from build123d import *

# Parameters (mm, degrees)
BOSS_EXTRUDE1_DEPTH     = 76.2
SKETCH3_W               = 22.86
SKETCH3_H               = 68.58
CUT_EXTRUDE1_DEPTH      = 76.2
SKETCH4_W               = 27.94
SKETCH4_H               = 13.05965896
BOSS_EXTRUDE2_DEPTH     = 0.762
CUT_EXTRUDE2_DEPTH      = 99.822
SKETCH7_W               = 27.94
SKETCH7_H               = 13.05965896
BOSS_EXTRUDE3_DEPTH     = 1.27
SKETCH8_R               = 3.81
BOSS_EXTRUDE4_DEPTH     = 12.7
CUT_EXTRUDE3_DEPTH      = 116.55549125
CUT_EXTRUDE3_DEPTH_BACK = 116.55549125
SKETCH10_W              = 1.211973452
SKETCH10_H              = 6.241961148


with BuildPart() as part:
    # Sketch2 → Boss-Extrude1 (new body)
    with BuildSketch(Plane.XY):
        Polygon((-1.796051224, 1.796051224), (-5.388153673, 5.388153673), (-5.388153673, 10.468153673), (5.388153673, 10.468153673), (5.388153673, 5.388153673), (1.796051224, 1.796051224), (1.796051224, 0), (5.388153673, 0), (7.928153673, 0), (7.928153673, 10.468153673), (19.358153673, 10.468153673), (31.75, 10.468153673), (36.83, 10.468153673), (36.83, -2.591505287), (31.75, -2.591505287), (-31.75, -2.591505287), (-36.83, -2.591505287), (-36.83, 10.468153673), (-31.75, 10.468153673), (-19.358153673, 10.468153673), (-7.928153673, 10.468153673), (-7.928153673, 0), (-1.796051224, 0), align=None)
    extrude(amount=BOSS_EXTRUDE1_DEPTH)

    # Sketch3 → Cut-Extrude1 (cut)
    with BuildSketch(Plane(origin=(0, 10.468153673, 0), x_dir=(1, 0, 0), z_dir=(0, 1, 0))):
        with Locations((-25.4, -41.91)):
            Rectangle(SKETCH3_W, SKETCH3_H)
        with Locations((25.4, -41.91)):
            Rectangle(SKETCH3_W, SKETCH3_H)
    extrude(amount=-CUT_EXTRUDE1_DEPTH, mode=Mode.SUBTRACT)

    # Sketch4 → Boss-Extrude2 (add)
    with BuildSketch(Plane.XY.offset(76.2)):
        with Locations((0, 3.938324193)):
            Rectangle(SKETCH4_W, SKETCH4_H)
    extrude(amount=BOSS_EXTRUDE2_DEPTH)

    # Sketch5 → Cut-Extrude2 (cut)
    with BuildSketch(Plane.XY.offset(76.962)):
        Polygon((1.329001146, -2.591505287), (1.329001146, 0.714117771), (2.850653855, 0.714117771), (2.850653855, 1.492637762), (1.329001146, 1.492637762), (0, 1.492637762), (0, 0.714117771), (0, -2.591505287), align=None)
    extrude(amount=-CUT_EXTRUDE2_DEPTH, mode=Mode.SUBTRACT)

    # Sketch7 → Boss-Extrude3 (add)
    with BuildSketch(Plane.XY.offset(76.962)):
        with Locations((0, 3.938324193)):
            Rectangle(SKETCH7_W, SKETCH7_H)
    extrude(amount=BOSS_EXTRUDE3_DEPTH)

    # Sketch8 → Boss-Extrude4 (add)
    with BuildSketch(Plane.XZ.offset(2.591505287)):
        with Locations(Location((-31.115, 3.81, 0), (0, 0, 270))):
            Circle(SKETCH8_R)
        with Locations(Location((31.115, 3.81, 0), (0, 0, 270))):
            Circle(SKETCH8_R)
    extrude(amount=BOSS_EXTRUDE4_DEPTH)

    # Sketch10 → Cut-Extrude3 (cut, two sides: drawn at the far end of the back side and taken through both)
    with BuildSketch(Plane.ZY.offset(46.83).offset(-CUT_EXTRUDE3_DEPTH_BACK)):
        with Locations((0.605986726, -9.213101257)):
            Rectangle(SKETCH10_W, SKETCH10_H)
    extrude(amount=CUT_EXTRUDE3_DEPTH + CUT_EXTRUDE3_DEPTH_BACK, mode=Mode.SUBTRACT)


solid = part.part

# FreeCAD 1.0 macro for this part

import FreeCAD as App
import Part
import Sketcher
from FreeCAD import Vector
Q = App.Units.Quantity

doc = App.newDocument("Part")
body = doc.addObject("PartDesign::Body", "Body")

sketch1 = body.newObject("Sketcher::SketchObject", "Sketch")
sketch1.AttachmentSupport = (doc.getObject("XY_Plane"), [""])
sketch1.MapMode = "FlatFace"
sketch1.addGeometry([
    Part.LineSegment(Vector(-5.4, 5.4, 0), Vector(-1.8, 1.8, 0)),
    Part.LineSegment(Vector(-1.8, 1.8, 0), Vector(-1.8, 0, 0)),
    Part.LineSegment(Vector(-1.8, 0, 0), Vector(-7.9, 0, 0)),
    Part.LineSegment(Vector(-7.9, 0, 0), Vector(-7.9, 10.5, 0)),
    Part.LineSegment(Vector(-7.9, 10.5, 0), Vector(-36.8, 10.5, 0)),
    Part.LineSegment(Vector(-36.8, 10.5, 0), Vector(-36.8, -2.6, 0)),
    Part.LineSegment(Vector(-36.8, -2.6, 0), Vector(36.8, -2.6, 0)),
    Part.LineSegment(Vector(36.8, -2.6, 0), Vector(36.8, 10.5, 0)),
    Part.LineSegment(Vector(36.8, 10.5, 0), Vector(7.9, 10.5, 0)),
    Part.LineSegment(Vector(7.9, 10.5, 0), Vector(7.9, 0, 0)),
    Part.LineSegment(Vector(7.9, 0, 0), Vector(1.8, 0, 0)),
    Part.LineSegment(Vector(1.8, 0, 0), Vector(1.8, 1.8, 0)),
    Part.LineSegment(Vector(1.8, 1.8, 0), Vector(5.4, 5.4, 0)),
    Part.LineSegment(Vector(5.4, 5.4, 0), Vector(5.4, 10.5, 0)),
    Part.LineSegment(Vector(5.4, 10.5, 0), Vector(-5.4, 10.5, 0)),
    Part.LineSegment(Vector(-5.4, 10.5, 0), Vector(-5.4, 5.4, 0)),
], False)
sketch1.addConstraint([
    Sketcher.Constraint("Coincident", 0, 2, 1, 1),
    Sketcher.Constraint("Coincident", 1, 2, 2, 1),
    Sketcher.Constraint("Coincident", 2, 2, 3, 1),
    Sketcher.Constraint("Coincident", 3, 2, 4, 1),
    Sketcher.Constraint("Coincident", 4, 2, 5, 1),
    Sketcher.Constraint("Coincident", 5, 2, 6, 1),
    Sketcher.Constraint("Coincident", 6, 2, 7, 1),
    Sketcher.Constraint("Coincident", 7, 2, 8, 1),
    Sketcher.Constraint("Coincident", 8, 2, 9, 1),
    Sketcher.Constraint("Coincident", 9, 2, 10, 1),
    Sketcher.Constraint("Coincident", 10, 2, 11, 1),
    Sketcher.Constraint("Coincident", 11, 2, 12, 1),
    Sketcher.Constraint("Coincident", 12, 2, 13, 1),
    Sketcher.Constraint("Coincident", 13, 2, 14, 1),
    Sketcher.Constraint("Coincident", 14, 2, 15, 1),
    Sketcher.Constraint("Coincident", 15, 2, 0, 1),
    Sketcher.Constraint("Vertical", 1),
    Sketcher.Constraint("Horizontal", 2),
    Sketcher.Constraint("Vertical", 3),
    Sketcher.Constraint("Horizontal", 4),
    Sketcher.Constraint("Vertical", 5),
    Sketcher.Constraint("Horizontal", 6),
    Sketcher.Constraint("Vertical", 7),
    Sketcher.Constraint("Horizontal", 8),
    Sketcher.Constraint("Vertical", 9),
    Sketcher.Constraint("Horizontal", 10),
    Sketcher.Constraint("Vertical", 11),
    Sketcher.Constraint("Vertical", 13),
    Sketcher.Constraint("Horizontal", 14),
    Sketcher.Constraint("Vertical", 15),
    Sketcher.Constraint("Symmetric", 2, 2, 9, 2, -1, 1),
    Sketcher.Constraint("Symmetric", 4, 2, 7, 2, -2),
    Sketcher.Constraint("Symmetric", 1, 2, 10, 2, -2),
    Sketcher.Constraint("Symmetric", 12, 2, 15, 2, -2),
    Sketcher.Constraint("Perpendicular", 0, 12),
    Sketcher.Constraint("Horizontal", 0, 2, 11, 2),
    Sketcher.Constraint("Horizontal", 8, 2, 13, 2),
    Sketcher.Constraint("DistanceX", 6, 1, 6, 2, Q("2.9 in")),
    Sketcher.Constraint("DistanceY", 13, 1, 13, 2, Q("0.2 in")),
    Sketcher.Constraint("Distance", 0, Q("0.2 in")),
    Sketcher.Constraint("DistanceX", 12, 2, 8, 2, Q("0.1 in")),
    Sketcher.Constraint("DistanceY", 1, 2, 1, 1, 1.796051),
    Sketcher.Constraint("DistanceY", 5, 2, 5, 1, 13.059659),
    Sketcher.Constraint("DistanceX", 4, 2, 4, 1, 28.901846),
])
pad1 = body.newObject("PartDesign::Pad", "Pad")
pad1.Profile = sketch1
pad1.Length = Q("3 in")

sketch2 = body.newObject("Sketcher::SketchObject", "Sketch001")
sketch2.AttachmentSupport = (doc.getObject("XZ_Plane"), [""])
sketch2.MapMode = "FlatFace"
sketch2.AttachmentOffset = App.Placement(Vector(0, 0, -10.468154), App.Rotation())
sketch2.addGeometry([
    Part.LineSegment(Vector(-37, 8, 0), Vector(-37, 76, 0)),
    Part.LineSegment(Vector(-37, 76, 0), Vector(-14, 76, 0)),
    Part.LineSegment(Vector(-14, 76, 0), Vector(-14, 8, 0)),
    Part.LineSegment(Vector(-14, 8, 0), Vector(-37, 8, 0)),
    Part.LineSegment(Vector(14, 8, 0), Vector(14, 76, 0)),
    Part.LineSegment(Vector(14, 76, 0), Vector(37, 76, 0)),
    Part.LineSegment(Vector(37, 76, 0), Vector(37, 8, 0)),
    Part.LineSegment(Vector(37, 8, 0), Vector(14, 8, 0)),
], False)
sketch2.addConstraint([
    Sketcher.Constraint("Coincident", 0, 2, 1, 1),
    Sketcher.Constraint("Coincident", 1, 2, 2, 1),
    Sketcher.Constraint("Coincident", 2, 2, 3, 1),
    Sketcher.Constraint("Coincident", 3, 2, 0, 1),
    Sketcher.Constraint("Coincident", 4, 2, 5, 1),
    Sketcher.Constraint("Coincident", 5, 2, 6, 1),
    Sketcher.Constraint("Coincident", 6, 2, 7, 1),
    Sketcher.Constraint("Coincident", 7, 2, 4, 1),
    Sketcher.Constraint("Vertical", 0),
    Sketcher.Constraint("Horizontal", 1),
    Sketcher.Constraint("Vertical", 2),
    Sketcher.Constraint("Horizontal", 3),
    Sketcher.Constraint("Vertical", 4),
    Sketcher.Constraint("Horizontal", 5),
    Sketcher.Constraint("Vertical", 6),
    Sketcher.Constraint("Horizontal", 7),
    Sketcher.Constraint("Symmetric", 1, 2, 4, 2, -2),
    Sketcher.Constraint("Symmetric", 3, 2, 6, 2, -2),
    Sketcher.Constraint("DistanceX", 1, 1, 1, 2, Q("0.9 in")),
    Sketcher.Constraint("DistanceY", 0, 1, 0, 2, Q("2.7 in")),
    Sketcher.Constraint("DistanceY", -1, 1, 0, 2, Q("3 in")),
    Sketcher.Constraint("DistanceX", 0, 2, 4, 2, Q("2 in")),
])
pocket1 = body.newObject("PartDesign::Pocket", "Pocket")
pocket1.Profile = sketch2
pocket1.Length = Q("3 in")
pocket1.Reversed = True

sketch3 = body.newObject("Sketcher::SketchObject", "Sketch002")
sketch3.AttachmentSupport = (doc.getObject("XY_Plane"), [""])
sketch3.MapMode = "FlatFace"
sketch3.AttachmentOffset = App.Placement(Vector(0, 0, 3 * 25.4), App.Rotation())
sketch3.addGeometry([
    Part.LineSegment(Vector(-14, 10, 0), Vector(-14, -3, 0)),
    Part.LineSegment(Vector(-14, -3, 0), Vector(14, -3, 0)),
    Part.LineSegment(Vector(14, -3, 0), Vector(14, 10, 0)),
    Part.LineSegment(Vector(14, 10, 0), Vector(-14, 10, 0)),
], False)
sketch3.addConstraint([
    Sketcher.Constraint("Coincident", 0, 2, 1, 1),
    Sketcher.Constraint("Coincident", 1, 2, 2, 1),
    Sketcher.Constraint("Coincident", 2, 2, 3, 1),
    Sketcher.Constraint("Coincident", 3, 2, 0, 1),
    Sketcher.Constraint("Vertical", 0),
    Sketcher.Constraint("Horizontal", 1),
    Sketcher.Constraint("Vertical", 2),
    Sketcher.Constraint("Horizontal", 3),
    Sketcher.Constraint("DistanceX", 1, 1, 1, 2, Q("1.1 in")),
    Sketcher.Constraint("DistanceX", 0, 2, -1, 1, Q("0.55 in")),
    Sketcher.Constraint("DistanceY", 0, 2, 0, 1, 13.059659),
    Sketcher.Constraint("DistanceY", 0, 2, -1, 1, 2.591505),
])
pad2 = body.newObject("PartDesign::Pad", "Pad001")
pad2.Profile = sketch3
pad2.Length = Q("0.03 in")

sketch4 = body.newObject("Sketcher::SketchObject", "Sketch003")
sketch4.AttachmentSupport = (doc.getObject("XY_Plane"), [""])
sketch4.MapMode = "FlatFace"
sketch4.AttachmentOffset = App.Placement(Vector(0, 0, 3.03 * 25.4), App.Rotation())
sketch4.addGeometry([
    Part.LineSegment(Vector(1.3, -2.6, 0), Vector(1.3, 0.7, 0)),
    Part.LineSegment(Vector(1.3, 0.7, 0), Vector(2.9, 0.7, 0)),
    Part.LineSegment(Vector(2.9, 0.7, 0), Vector(2.9, 1.5, 0)),
    Part.LineSegment(Vector(2.9, 1.5, 0), Vector(0, 1.5, 0)),
    Part.LineSegment(Vector(0, 1.5, 0), Vector(0, -2.6, 0)),
    Part.LineSegment(Vector(0, -2.6, 0), Vector(1.3, -2.6, 0)),
], False)
sketch4.addConstraint([
    Sketcher.Constraint("Coincident", 0, 2, 1, 1),
    Sketcher.Constraint("Coincident", 1, 2, 2, 1),
    Sketcher.Constraint("Coincident", 2, 2, 3, 1),
    Sketcher.Constraint("Coincident", 3, 2, 4, 1),
    Sketcher.Constraint("Coincident", 4, 2, 5, 1),
    Sketcher.Constraint("Coincident", 5, 2, 0, 1),
    Sketcher.Constraint("Vertical", 0),
    Sketcher.Constraint("Horizontal", 1),
    Sketcher.Constraint("Vertical", 2),
    Sketcher.Constraint("Horizontal", 3),
    Sketcher.Constraint("Vertical", 4),
    Sketcher.Constraint("Horizontal", 5),
    Sketcher.Constraint("PointOnObject", 3, 2, -2),
    Sketcher.Constraint("DistanceX", 5, 1, 5, 2, 1.329001),
    Sketcher.Constraint("DistanceY", 2, 1, 2, 2, 0.77852),
    Sketcher.Constraint("DistanceX", 1, 1, 1, 2, 1.521653),
    Sketcher.Constraint("DistanceY", 0, 1, 0, 2, 3.305623),
    Sketcher.Constraint("DistanceY", -1, 1, 0, 2, 0.714118),
])
pocket2 = body.newObject("PartDesign::Pocket", "Pocket001")
pocket2.Profile = sketch4
pocket2.Length = Q("3.93 in")

sketch5 = body.newObject("Sketcher::SketchObject", "Sketch004")
sketch5.AttachmentSupport = (doc.getObject("XY_Plane"), [""])
sketch5.MapMode = "FlatFace"
sketch5.AttachmentOffset = App.Placement(Vector(0, 0, 3.03 * 25.4), App.Rotation())
sketch5.addGeometry([
    Part.LineSegment(Vector(-14, 10, 0), Vector(-14, -3, 0)),
    Part.LineSegment(Vector(-14, -3, 0), Vector(14, -3, 0)),
    Part.LineSegment(Vector(14, -3, 0), Vector(14, 10, 0)),
    Part.LineSegment(Vector(14, 10, 0), Vector(-14, 10, 0)),
], False)
sketch5.addConstraint([
    Sketcher.Constraint("Coincident", 0, 2, 1, 1),
    Sketcher.Constraint("Coincident", 1, 2, 2, 1),
    Sketcher.Constraint("Coincident", 2, 2, 3, 1),
    Sketcher.Constraint("Coincident", 3, 2, 0, 1),
    Sketcher.Constraint("Vertical", 0),
    Sketcher.Constraint("Horizontal", 1),
    Sketcher.Constraint("Vertical", 2),
    Sketcher.Constraint("Horizontal", 3),
    Sketcher.Constraint("DistanceX", 1, 1, 1, 2, Q("1.1 in")),
    Sketcher.Constraint("DistanceX", 0, 2, -1, 1, Q("0.55 in")),
    Sketcher.Constraint("DistanceY", 0, 2, 0, 1, 13.059659),
    Sketcher.Constraint("DistanceY", 0, 2, -1, 1, 2.591505),
])
pad3 = body.newObject("PartDesign::Pad", "Pad002")
pad3.Profile = sketch5
pad3.Length = Q("0.05 in")

sketch6 = body.newObject("Sketcher::SketchObject", "Sketch005")
sketch6.AttachmentSupport = (doc.getObject("XZ_Plane"), [""])
sketch6.MapMode = "FlatFace"
sketch6.AttachmentOffset = App.Placement(Vector(0, 0, 2.591505), App.Rotation())
sketch6.addGeometry([
    Part.Circle(Vector(-31.1, 3.8, 0), Vector(0, 0, 1), 3.8),
    Part.Circle(Vector(31.1, 3.8, 0), Vector(0, 0, 1), 3.8),
], False)
sketch6.addConstraint([
    Sketcher.Constraint("Equal", 0, 1),
    Sketcher.Constraint("Symmetric", 0, 3, 1, 3, -2),
    Sketcher.Constraint("Diameter", 0, Q("0.3 in")),
    Sketcher.Constraint("DistanceY", -1, 1, 0, 3, Q("0.15 in")),
    Sketcher.Constraint("DistanceX", 0, 3, 1, 3, Q("2.45 in")),
])
pad4 = body.newObject("PartDesign::Pad", "Pad003")
pad4.Profile = sketch6
pad4.Length = Q("0.5 in")

sketch7 = body.newObject("Sketcher::SketchObject", "Sketch006")
sketch7.AttachmentSupport = (doc.getObject("YZ_Plane"), [""])
sketch7.MapMode = "FlatFace"
sketch7.AttachmentOffset = App.Placement(Vector(0, 0, -46.83), App.Rotation())
sketch7.addGeometry([
    Part.LineSegment(Vector(-6.1, 0, 0), Vector(-12.3, 0, 0)),
    Part.LineSegment(Vector(-12.3, 0, 0), Vector(-12.3, 1.2, 0)),
    Part.LineSegment(Vector(-12.3, 1.2, 0), Vector(-6.1, 1.2, 0)),
    Part.LineSegment(Vector(-6.1, 1.2, 0), Vector(-6.1, 0, 0)),
], False)
sketch7.addConstraint([
    Sketcher.Constraint("Coincident", 0, 2, 1, 1),
    Sketcher.Constraint("Coincident", 1, 2, 2, 1),
    Sketcher.Constraint("Coincident", 2, 2, 3, 1),
    Sketcher.Constraint("Coincident", 3, 2, 0, 1),
    Sketcher.Constraint("Horizontal", 0),
    Sketcher.Constraint("Vertical", 1),
    Sketcher.Constraint("Horizontal", 2),
    Sketcher.Constraint("Vertical", 3),
    Sketcher.Constraint("PointOnObject", 0, 2, -1),
    Sketcher.Constraint("DistanceX", 0, 2, 0, 1, 6.241961),
    Sketcher.Constraint("DistanceY", 1, 1, 1, 2, 1.211973),
    Sketcher.Constraint("DistanceX", 0, 2, -1, 1, 12.334082),
])
pocket3 = body.newObject("PartDesign::Pocket", "Pocket002")
pocket3.Profile = sketch7
pocket3.Type = "ThroughAll"
pocket3.Midplane = True

doc.recompute()
